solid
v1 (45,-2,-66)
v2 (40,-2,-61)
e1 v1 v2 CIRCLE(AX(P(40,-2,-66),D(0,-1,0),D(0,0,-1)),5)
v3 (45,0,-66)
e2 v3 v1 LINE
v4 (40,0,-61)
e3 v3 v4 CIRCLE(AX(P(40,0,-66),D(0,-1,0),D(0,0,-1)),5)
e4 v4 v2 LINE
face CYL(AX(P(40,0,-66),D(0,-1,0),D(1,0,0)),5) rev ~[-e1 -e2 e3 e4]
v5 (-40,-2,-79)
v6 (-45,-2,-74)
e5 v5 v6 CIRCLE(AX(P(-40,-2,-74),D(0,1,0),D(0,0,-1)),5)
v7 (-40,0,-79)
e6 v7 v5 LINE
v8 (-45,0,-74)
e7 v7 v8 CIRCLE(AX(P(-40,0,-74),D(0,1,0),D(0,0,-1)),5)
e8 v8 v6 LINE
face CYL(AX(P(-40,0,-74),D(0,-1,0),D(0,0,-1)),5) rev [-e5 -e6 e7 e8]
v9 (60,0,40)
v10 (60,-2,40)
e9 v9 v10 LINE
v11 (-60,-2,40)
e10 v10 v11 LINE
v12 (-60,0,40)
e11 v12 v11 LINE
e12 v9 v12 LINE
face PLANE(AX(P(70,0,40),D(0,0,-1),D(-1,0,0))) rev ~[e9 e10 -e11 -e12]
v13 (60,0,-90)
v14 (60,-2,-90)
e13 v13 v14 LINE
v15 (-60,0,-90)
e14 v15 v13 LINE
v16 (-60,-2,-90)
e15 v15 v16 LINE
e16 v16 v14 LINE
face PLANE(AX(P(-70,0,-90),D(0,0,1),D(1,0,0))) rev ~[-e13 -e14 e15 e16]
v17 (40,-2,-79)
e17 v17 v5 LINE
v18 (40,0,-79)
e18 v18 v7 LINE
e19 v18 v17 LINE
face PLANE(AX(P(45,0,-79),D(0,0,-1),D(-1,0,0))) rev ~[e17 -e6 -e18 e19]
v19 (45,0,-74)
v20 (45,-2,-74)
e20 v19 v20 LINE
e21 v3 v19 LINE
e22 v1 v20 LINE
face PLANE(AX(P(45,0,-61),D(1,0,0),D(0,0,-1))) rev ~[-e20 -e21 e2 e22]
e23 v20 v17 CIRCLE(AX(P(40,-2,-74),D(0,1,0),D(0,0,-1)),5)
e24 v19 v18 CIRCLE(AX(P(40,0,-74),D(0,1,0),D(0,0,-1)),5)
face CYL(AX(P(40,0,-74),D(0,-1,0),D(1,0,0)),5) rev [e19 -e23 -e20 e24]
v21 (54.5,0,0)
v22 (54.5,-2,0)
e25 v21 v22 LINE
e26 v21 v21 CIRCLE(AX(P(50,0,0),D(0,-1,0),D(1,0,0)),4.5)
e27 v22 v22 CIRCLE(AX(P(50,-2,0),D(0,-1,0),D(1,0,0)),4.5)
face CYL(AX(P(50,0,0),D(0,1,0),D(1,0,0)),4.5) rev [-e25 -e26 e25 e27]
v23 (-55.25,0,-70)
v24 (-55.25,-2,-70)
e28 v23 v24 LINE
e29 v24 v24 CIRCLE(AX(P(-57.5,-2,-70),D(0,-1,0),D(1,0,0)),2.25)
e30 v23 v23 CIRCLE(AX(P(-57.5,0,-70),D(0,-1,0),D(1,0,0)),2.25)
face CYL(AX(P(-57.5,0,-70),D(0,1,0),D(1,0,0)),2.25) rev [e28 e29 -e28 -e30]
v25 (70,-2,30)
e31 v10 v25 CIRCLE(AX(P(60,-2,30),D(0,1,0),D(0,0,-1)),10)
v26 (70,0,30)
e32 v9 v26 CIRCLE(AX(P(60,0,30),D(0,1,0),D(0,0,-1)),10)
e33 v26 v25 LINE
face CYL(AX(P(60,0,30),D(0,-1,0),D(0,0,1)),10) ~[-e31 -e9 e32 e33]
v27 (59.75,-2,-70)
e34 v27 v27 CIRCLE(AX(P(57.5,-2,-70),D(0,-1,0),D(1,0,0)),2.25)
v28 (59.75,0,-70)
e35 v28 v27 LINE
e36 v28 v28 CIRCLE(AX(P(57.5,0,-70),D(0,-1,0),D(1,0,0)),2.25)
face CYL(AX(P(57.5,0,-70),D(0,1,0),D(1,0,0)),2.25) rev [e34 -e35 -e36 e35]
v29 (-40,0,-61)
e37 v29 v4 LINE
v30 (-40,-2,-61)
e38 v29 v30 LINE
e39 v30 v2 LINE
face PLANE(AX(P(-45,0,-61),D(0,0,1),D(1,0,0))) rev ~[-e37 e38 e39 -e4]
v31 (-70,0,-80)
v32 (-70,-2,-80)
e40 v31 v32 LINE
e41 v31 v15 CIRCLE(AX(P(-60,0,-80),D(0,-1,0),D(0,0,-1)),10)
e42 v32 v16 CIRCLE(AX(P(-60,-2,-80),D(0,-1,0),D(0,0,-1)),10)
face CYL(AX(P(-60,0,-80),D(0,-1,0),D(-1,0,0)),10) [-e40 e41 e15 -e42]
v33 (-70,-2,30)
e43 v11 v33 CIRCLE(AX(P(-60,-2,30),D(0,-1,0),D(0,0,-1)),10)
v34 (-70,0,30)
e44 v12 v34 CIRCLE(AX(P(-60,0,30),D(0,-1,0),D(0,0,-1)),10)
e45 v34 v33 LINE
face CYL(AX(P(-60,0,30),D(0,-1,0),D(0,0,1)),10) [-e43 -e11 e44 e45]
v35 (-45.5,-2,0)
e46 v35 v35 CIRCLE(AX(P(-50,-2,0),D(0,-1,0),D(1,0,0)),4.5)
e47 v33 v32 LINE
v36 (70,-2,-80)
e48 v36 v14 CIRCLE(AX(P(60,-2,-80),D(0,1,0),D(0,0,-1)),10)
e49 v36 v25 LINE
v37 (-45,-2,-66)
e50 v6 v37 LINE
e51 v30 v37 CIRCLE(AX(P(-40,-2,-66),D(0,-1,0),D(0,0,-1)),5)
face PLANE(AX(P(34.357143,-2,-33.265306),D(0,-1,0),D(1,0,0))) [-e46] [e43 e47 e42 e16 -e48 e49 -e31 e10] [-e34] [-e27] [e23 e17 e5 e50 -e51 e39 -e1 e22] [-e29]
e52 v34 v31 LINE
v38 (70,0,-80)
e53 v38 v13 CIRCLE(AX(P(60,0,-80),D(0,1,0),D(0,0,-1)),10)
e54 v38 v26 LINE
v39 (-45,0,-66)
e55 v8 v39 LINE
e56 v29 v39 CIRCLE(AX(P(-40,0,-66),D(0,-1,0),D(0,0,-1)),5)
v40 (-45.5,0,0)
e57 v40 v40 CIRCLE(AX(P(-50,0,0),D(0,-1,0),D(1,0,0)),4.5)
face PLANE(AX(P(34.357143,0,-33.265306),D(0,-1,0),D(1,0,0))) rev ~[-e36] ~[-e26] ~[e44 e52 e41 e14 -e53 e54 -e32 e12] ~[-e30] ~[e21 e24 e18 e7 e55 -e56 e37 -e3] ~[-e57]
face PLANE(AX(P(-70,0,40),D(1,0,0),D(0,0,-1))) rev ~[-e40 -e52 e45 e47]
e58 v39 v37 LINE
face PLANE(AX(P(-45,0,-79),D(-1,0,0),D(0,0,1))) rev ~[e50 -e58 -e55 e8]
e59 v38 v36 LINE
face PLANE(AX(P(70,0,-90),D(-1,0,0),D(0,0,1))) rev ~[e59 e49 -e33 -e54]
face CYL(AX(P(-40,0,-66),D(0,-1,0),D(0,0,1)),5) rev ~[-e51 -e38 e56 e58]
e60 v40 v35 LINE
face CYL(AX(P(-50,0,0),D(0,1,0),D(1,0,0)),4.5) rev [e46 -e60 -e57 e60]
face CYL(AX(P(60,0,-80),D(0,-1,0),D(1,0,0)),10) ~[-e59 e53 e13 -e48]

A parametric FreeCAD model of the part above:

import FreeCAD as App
import Part
import Sketcher
Q = App.Units.Quantity


def edges_at(feature, points):
    """Names of the edges that pass closest to the given points."""
    edges = feature.Shape.Edges
    near = lambda p: min(range(len(edges)), key=lambda i: edges[i].distToShape(Part.Vertex(*p))[0])
    return sorted({f"Edge{near(p) + 1}" for p in points})


def add_polygon(sketch, points):
    """Adds a closed chain of lines whose ends are joined by coincident constraints."""
    first, n = sketch.GeometryCount, len(points)
    for a, b in zip(points, points[1:] + points[:1]):
        sketch.addGeometry(Part.LineSegment(App.Vector(*a, 0), App.Vector(*b, 0)), False)
    for i in range(n):
        sketch.addConstraint(Sketcher.Constraint("Coincident", first + i, 2, first + (i + 1) % n, 1))

doc = App.newDocument("Part")
body = doc.addObject("PartDesign::Body", "Body")

sketch1 = body.newObject("Sketcher::SketchObject", "Sketch")
sketch1.AttachmentSupport = (doc.getObject("XZ_Plane"), [""])
sketch1.MapMode = "FlatFace"
add_polygon(sketch1, [(70, 40), (-70, 40), (-70, -90), (70, -90)])
sketch1.addGeometry(Part.Circle(App.Vector(-57.5, -70, 0), App.Vector(0, 0, 1), 2.2), False)
add_polygon(sketch1, [(45, -61), (45, -79), (-45, -79), (-45, -61)])
sketch1.addGeometry(Part.Circle(App.Vector(57.5, -70, 0), App.Vector(0, 0, 1), 2.2), False)
sketch1.addGeometry(Part.Circle(App.Vector(-50, 0, 0), App.Vector(0, 0, 1), 4.5), False)
sketch1.addGeometry(Part.Circle(App.Vector(50, 0, 0), App.Vector(0, 0, 1), 4.5), False)
sketch1.addConstraint([
    Sketcher.Constraint("Horizontal", 0),
    Sketcher.Constraint("Vertical", 1),
    Sketcher.Constraint("Horizontal", 2),
    Sketcher.Constraint("Vertical", 3),
    Sketcher.Constraint("Vertical", 5),
    Sketcher.Constraint("Horizontal", 6),
    Sketcher.Constraint("Vertical", 7),
    Sketcher.Constraint("Horizontal", 8),
    Sketcher.Constraint("Equal", 4, 9),
    Sketcher.Constraint("Equal", 10, 11),
    Sketcher.Constraint("Symmetric", 10, 3, 11, 3, -1, 1),
    Sketcher.Constraint("Symmetric", 4, 3, 9, 3, -2),
    Sketcher.Constraint("PointOnObject", 10, 3, -1),
    Sketcher.Constraint("Diameter", 10, Q("9 mm")),
    Sketcher.Constraint("Diameter", 4, Q("4.5 mm")),
    Sketcher.Constraint("DistanceX", 0, 2, 0, 1, Q("140 mm")),
    Sketcher.Constraint("DistanceX", 6, 2, 6, 1, Q("90 mm")),
    Sketcher.Constraint("DistanceY", 1, 2, 1, 1, Q("130 mm")),
    Sketcher.Constraint("DistanceY", 5, 2, 5, 1, Q("18 mm")),
    Sketcher.Constraint("DistanceY", 4, 3, -1, 1, Q("70 mm")),
    Sketcher.Constraint("DistanceX", 10, 3, -1, 1, Q("50 mm")),
    Sketcher.Constraint("DistanceX", 0, 2, -1, 1, Q("70 mm")),
    Sketcher.Constraint("DistanceY", -1, 1, 0, 2, Q("40 mm")),
    Sketcher.Constraint("DistanceX", -1, 1, 5, 2, Q("45 mm")),
    Sketcher.Constraint("DistanceY", 5, 2, -1, 1, Q("79 mm")),
    Sketcher.Constraint("DistanceX", 4, 3, 9, 3, Q("115 mm")),
])
pad1 = body.newObject("PartDesign::Pad", "Pad")
pad1.Profile = sketch1
pad1.Length = 2
doc.recompute()

fillet = body.newObject("PartDesign::Fillet", "Fillet")
fillet.Base = (pad1, edges_at(pad1, [
    (70, -1, 40),
    (-70, -1, 40),
    (70, -1, -90),
    (-70, -1, -90),
]))
fillet.Radius = 10
doc.recompute()

fillet2 = body.newObject("PartDesign::Fillet", "Fillet001")
fillet2.Base = (fillet, edges_at(fillet, [
    (45, -1, -61),
    (45, -1, -79),
    (-45, -1, -79),
    (-45, -1, -61),
]))
fillet2.Radius = 5

doc.recompute()
